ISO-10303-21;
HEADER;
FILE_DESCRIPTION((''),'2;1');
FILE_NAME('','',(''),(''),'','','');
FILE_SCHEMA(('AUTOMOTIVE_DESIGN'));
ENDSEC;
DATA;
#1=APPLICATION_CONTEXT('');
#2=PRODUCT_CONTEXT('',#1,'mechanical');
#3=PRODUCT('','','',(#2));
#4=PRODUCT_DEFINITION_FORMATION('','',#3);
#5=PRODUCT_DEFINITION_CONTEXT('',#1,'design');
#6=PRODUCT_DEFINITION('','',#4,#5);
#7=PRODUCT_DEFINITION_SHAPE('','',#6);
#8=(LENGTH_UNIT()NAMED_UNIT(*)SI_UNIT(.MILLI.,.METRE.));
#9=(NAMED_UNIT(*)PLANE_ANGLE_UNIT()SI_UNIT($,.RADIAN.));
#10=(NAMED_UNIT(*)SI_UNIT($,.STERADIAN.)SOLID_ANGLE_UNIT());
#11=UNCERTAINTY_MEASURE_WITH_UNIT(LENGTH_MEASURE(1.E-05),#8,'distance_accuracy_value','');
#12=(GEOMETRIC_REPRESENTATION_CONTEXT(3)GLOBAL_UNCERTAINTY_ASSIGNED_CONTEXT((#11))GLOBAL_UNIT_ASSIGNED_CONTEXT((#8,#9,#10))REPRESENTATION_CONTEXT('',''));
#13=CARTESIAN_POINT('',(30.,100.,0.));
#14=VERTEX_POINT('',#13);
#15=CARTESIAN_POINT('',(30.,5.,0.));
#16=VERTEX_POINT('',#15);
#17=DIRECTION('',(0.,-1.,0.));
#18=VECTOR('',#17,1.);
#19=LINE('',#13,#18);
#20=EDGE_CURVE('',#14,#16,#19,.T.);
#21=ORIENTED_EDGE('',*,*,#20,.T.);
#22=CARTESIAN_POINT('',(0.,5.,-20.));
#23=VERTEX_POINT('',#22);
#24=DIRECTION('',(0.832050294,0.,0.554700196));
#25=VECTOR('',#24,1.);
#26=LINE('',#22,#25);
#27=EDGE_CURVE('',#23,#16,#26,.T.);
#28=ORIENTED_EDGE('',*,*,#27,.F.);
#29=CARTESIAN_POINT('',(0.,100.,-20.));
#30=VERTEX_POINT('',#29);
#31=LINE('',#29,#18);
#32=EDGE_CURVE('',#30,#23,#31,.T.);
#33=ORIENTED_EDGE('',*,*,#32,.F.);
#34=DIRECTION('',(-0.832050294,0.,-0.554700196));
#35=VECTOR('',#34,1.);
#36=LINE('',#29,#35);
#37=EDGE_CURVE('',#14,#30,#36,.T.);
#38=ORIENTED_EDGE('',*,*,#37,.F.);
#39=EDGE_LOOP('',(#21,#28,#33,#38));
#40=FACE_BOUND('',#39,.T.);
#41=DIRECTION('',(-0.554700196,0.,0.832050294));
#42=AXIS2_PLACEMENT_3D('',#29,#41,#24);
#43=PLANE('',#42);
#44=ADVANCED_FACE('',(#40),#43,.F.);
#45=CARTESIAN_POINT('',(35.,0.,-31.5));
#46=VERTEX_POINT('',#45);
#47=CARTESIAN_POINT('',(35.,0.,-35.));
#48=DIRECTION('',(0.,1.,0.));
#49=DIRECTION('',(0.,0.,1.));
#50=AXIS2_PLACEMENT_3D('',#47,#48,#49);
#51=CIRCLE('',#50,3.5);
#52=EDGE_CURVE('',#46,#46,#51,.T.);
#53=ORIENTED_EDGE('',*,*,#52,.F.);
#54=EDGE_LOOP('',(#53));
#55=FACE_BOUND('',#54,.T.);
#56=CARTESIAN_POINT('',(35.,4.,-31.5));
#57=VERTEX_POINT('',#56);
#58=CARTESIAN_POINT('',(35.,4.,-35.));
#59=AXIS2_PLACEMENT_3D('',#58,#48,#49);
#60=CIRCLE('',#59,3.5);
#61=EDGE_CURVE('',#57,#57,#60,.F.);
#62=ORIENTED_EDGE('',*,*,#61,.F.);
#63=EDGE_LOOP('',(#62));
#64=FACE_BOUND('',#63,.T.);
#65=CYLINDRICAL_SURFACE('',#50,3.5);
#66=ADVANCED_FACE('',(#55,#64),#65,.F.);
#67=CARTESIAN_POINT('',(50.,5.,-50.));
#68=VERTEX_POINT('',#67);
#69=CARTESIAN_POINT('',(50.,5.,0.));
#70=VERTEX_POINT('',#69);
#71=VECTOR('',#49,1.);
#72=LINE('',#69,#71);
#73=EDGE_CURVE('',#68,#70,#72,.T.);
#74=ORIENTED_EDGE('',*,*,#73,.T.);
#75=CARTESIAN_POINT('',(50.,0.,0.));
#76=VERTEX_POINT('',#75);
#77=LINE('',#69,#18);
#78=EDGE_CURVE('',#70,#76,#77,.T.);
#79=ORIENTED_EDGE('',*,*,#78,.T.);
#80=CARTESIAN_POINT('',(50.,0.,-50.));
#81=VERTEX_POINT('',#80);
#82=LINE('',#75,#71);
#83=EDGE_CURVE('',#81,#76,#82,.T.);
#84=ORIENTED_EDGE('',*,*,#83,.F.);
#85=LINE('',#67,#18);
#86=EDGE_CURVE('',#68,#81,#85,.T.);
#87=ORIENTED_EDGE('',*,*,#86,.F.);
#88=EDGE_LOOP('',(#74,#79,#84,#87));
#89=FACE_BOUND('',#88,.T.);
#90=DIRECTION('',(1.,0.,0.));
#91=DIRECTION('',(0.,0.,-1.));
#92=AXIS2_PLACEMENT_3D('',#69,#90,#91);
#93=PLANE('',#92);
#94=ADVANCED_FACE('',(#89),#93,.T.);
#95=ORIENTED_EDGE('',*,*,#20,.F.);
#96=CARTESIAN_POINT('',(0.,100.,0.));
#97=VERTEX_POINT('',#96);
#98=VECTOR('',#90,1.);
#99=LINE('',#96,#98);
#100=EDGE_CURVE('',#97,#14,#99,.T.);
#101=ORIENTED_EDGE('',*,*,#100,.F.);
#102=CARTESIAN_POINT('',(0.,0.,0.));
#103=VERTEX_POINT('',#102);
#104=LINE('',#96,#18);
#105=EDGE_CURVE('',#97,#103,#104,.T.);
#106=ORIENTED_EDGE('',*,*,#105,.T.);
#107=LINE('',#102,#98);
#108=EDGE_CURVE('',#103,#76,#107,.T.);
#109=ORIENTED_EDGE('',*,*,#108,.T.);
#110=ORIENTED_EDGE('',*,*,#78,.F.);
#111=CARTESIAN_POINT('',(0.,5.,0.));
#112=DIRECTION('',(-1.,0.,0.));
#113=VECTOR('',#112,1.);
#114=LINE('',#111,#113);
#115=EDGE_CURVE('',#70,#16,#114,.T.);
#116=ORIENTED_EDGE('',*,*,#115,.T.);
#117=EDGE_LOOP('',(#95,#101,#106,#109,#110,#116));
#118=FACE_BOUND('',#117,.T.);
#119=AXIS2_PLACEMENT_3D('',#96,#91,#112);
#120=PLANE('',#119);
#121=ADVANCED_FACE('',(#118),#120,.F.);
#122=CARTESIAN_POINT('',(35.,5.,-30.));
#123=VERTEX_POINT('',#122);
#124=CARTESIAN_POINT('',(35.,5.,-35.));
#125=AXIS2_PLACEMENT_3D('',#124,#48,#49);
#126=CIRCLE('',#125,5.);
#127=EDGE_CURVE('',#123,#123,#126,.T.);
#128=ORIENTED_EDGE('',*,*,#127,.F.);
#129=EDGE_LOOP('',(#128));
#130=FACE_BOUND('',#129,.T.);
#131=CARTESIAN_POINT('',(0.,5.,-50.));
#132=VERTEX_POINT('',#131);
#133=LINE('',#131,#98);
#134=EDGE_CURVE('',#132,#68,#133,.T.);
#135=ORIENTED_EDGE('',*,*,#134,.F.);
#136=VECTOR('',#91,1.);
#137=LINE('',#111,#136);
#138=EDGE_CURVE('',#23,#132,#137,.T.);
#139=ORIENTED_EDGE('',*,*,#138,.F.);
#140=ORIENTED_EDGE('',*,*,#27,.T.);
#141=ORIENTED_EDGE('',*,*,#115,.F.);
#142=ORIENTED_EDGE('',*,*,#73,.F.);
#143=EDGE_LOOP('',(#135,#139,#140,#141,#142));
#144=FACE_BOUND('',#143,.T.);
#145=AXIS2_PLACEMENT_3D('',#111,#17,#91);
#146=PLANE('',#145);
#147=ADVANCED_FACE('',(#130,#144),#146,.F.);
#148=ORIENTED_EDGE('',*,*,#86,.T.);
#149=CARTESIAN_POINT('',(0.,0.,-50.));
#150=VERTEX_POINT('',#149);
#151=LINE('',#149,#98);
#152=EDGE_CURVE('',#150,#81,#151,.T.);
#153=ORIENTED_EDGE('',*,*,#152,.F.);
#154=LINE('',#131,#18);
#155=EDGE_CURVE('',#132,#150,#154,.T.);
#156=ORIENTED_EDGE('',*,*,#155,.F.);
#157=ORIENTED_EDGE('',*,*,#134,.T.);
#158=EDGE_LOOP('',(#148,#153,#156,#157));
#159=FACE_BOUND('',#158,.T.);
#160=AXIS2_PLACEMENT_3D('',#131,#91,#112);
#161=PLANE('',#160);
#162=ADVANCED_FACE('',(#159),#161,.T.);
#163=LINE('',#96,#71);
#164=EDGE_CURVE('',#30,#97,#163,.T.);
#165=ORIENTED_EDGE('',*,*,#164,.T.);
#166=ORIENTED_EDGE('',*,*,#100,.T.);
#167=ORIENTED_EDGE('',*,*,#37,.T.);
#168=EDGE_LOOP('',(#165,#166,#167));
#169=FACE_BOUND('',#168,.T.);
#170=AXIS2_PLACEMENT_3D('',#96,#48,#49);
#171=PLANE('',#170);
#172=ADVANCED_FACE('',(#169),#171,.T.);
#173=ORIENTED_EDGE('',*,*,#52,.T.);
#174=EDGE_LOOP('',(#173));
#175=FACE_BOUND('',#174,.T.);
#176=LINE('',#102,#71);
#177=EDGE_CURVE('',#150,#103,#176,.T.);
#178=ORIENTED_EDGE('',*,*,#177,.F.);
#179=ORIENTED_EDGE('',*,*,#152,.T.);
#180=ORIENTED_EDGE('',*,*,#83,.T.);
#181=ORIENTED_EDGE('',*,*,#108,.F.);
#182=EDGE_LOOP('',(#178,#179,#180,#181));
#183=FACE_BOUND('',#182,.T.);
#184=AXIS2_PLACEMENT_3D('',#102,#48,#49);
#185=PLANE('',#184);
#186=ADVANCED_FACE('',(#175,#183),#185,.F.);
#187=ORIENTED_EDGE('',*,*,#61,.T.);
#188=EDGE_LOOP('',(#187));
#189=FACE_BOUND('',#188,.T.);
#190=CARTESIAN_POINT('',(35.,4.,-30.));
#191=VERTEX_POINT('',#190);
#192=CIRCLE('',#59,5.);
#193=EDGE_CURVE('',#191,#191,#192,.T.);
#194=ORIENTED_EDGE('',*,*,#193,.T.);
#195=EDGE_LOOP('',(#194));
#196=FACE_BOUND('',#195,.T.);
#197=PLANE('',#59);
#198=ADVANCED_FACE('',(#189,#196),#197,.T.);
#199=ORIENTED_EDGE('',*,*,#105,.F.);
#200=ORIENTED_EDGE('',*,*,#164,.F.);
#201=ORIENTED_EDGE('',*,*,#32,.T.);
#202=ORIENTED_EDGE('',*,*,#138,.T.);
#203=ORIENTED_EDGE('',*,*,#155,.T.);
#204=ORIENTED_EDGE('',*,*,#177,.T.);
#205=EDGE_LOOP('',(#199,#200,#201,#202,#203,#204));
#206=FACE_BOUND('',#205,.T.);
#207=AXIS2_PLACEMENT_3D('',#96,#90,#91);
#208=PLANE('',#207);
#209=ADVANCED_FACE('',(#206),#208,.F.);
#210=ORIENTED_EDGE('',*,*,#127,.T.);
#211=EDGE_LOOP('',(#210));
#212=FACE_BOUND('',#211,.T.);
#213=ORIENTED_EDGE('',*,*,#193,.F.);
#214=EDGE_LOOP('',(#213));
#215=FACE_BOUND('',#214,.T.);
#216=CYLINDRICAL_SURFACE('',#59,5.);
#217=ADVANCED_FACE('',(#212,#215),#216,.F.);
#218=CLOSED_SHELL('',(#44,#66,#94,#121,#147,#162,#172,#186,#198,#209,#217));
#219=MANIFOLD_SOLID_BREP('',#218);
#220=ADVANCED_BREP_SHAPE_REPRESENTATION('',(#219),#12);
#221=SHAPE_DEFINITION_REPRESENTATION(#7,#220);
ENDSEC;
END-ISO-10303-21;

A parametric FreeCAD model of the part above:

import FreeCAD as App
import Part
import Sketcher
from FreeCAD import Vector


def add_polygon(sketch, points):
    """Adds a closed chain of lines whose ends are joined by coincident constraints."""
    first, n = sketch.GeometryCount, len(points)
    for a, b in zip(points, points[1:] + points[:1]):
        sketch.addGeometry(Part.LineSegment(App.Vector(*a, 0), App.Vector(*b, 0)), False)
    for i in range(n):
        sketch.addConstraint(Sketcher.Constraint("Coincident", first + i, 2, first + (i + 1) % n, 1))

doc = App.newDocument("Part")
body = doc.addObject("PartDesign::Body", "Body")

sketch1 = body.newObject("Sketcher::SketchObject", "Sketch")
sketch1.AttachmentSupport = (doc.getObject("XZ_Plane"), [""])
sketch1.MapMode = "FlatFace"
add_polygon(sketch1, [(0, -20), (0, 0), (30, 0)])
sketch1.addConstraint([
    Sketcher.Constraint("Vertical", 0),
    Sketcher.Constraint("Horizontal", 1),
    Sketcher.Constraint("Coincident", 0, 2, -1, 1),
    Sketcher.Constraint("DistanceX", 1, 1, 1, 2, 30.0),
    Sketcher.Constraint("DistanceY", 0, 1, 0, 2, 20.0),
])
pad1 = body.newObject("PartDesign::Pad", "Pad")
pad1.Profile = sketch1
pad1.Length = 100
pad1.Reversed = True

sketch2 = body.newObject("Sketcher::SketchObject", "Sketch001")
sketch2.AttachmentSupport = (doc.getObject("XZ_Plane"), [""])
sketch2.MapMode = "FlatFace"
add_polygon(sketch2, [(0, 0), (0, -50), (50, -50), (50, 0)])
sketch2.addConstraint([
    Sketcher.Constraint("Vertical", 0),
    Sketcher.Constraint("Horizontal", 1),
    Sketcher.Constraint("Vertical", 2),
    Sketcher.Constraint("Horizontal", 3),
    Sketcher.Constraint("Coincident", 3, 2, -1, 1),
    Sketcher.Constraint("Equal", 3, 0),
    Sketcher.Constraint("DistanceX", 1, 1, 1, 2, 50.0),
])
pad2 = body.newObject("PartDesign::Pad", "Pad001")
pad2.Profile = sketch2
pad2.Length = 5
pad2.Reversed = True

sketch3 = body.newObject("Sketcher::SketchObject", "Sketch002")
sketch3.AttachmentSupport = (doc.getObject("XZ_Plane"), [""])
sketch3.MapMode = "FlatFace"
sketch3.AttachmentOffset = App.Placement(Vector(0, 0, -5), App.Rotation())
sketch3.addGeometry(Part.Circle(Vector(35, -35, 0), Vector(0, 0, 1), 3.5), False)
sketch3.addConstraint([
    Sketcher.Constraint("Diameter", 0, 7.0),
    Sketcher.Constraint("DistanceX", -1, 1, 0, 3, 35.0),
    Sketcher.Constraint("DistanceY", 0, 3, -1, 1, 35.0),
])
pocket1 = body.newObject("PartDesign::Pocket", "Pocket")
pocket1.Profile = sketch3
pocket1.Type = "ThroughAll"
pocket1.Reversed = True

sketch4 = body.newObject("Sketcher::SketchObject", "Sketch003")
sketch4.AttachmentSupport = (doc.getObject("XZ_Plane"), [""])
sketch4.MapMode = "FlatFace"
sketch4.AttachmentOffset = App.Placement(Vector(0, 0, -5), App.Rotation())
sketch4.addGeometry(Part.Circle(Vector(35, -35, 0), Vector(0, 0, 1), 5), False)
sketch4.addConstraint([
    Sketcher.Constraint("Diameter", 0, 10.0),
    Sketcher.Constraint("DistanceX", -1, 1, 0, 3, 35.0),
    Sketcher.Constraint("DistanceY", 0, 3, -1, 1, 35.0),
])
pocket2 = body.newObject("PartDesign::Pocket", "Pocket001")
pocket2.Profile = sketch4
pocket2.Length = 1
pocket2.Reversed = True

doc.recompute()
